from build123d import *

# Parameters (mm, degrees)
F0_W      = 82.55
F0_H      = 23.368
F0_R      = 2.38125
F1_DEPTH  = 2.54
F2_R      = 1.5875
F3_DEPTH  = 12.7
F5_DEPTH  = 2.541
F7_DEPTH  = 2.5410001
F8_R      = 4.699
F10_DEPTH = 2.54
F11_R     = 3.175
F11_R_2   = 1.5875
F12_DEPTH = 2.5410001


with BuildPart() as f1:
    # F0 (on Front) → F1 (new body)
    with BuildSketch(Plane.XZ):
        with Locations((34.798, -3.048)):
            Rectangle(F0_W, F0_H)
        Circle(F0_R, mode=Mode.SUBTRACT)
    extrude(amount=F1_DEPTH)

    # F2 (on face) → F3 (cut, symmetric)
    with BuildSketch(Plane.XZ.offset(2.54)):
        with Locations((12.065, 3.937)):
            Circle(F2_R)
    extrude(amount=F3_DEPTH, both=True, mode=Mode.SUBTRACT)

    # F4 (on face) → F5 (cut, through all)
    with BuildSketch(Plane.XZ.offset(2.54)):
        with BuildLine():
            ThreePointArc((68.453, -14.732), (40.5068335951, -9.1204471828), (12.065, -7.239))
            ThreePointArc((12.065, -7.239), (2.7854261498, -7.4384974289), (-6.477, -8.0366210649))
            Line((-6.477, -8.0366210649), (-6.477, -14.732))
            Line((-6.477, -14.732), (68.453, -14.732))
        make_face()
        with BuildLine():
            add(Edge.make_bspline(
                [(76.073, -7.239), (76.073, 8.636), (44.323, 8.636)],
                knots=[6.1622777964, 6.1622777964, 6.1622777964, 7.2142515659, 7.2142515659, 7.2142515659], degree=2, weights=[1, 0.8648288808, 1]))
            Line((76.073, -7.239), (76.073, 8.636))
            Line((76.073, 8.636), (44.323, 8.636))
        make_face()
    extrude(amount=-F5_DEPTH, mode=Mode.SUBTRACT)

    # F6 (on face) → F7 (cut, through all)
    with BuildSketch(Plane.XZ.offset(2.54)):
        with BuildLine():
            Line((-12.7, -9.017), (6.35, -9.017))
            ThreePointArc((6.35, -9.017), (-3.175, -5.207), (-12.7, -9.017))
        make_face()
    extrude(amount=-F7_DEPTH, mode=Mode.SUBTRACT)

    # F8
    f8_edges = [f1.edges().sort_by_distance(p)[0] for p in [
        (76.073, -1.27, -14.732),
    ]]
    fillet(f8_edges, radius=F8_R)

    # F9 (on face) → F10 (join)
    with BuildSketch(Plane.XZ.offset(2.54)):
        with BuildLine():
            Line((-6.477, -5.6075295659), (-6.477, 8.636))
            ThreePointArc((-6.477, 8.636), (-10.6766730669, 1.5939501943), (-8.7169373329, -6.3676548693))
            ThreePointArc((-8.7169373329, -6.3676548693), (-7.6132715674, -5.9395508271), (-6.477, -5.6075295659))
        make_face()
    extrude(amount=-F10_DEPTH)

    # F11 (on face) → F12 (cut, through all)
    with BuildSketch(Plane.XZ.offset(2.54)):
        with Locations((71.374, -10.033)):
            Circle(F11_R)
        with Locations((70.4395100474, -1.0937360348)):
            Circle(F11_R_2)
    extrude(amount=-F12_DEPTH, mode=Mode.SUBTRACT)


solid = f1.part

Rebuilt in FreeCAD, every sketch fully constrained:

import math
import FreeCAD as App
import Part
import Sketcher
Q = App.Units.Quantity


def edges_at(feature, points):
    """Names of the edges that pass closest to the given points."""
    edges = feature.Shape.Edges
    near = lambda p: min(range(len(edges)), key=lambda i: edges[i].distToShape(Part.Vertex(*p))[0])
    return sorted({f"Edge{near(p) + 1}" for p in points})

doc = App.newDocument("Part")
params = doc.addObject("Spreadsheet::Sheet", "Params")
for row, (alias, value) in enumerate([
    ("sketch1_diameter", "0.1875 in"),
    ("sketch1_width", "3.25 in"),
    ("sketch1_height", "0.92 in"),
    ("pad1_length", "0.1 in"),
    ("sketch2_diameter", "0.125 in"),
    ("pocket1_length", "1 in"),
    ("sketch3_width", "2.95 in"),
    ("sketch4_width", "0.75 in"),
    ("fillet_radius", "0.185 in"),
    ("sketch5_radius", "0.425 in"),
    ("pad2_length", "0.1 in"),
    ("sketch6_diameter", "0.25 in"),
    ("sketch6_diameter2", "0.125 in"),
], start=1):
    params.set(f"A{row}", alias)
    params.set(f"B{row}", "=" + value)
    params.setAlias(f"B{row}", alias)

body = doc.addObject("PartDesign::Body", "Body")

# Sketch on XZ plane
sketch1 = body.newObject("Sketcher::SketchObject", "Sketch")
sketch1.AttachmentSupport = (doc.getObject("XZ_Plane"), [""])
sketch1.MapMode = "FlatFace"
sketch1.addGeometry([
    Part.LineSegment(App.Vector(-6.5, 8.6, 0), App.Vector(-6.5, -14.7, 0)),  # 0
    Part.LineSegment(App.Vector(-6.5, -14.7, 0), App.Vector(76.1, -14.7, 0)),  # 1
    Part.LineSegment(App.Vector(76.1, -14.7, 0), App.Vector(76.1, 8.6, 0)),  # 2
    Part.LineSegment(App.Vector(76.1, 8.6, 0), App.Vector(-6.5, 8.6, 0)),  # 3
    Part.Circle(App.Vector(0, 0, 0), App.Vector(0, 0, 1), 2.4),  # 4
], False)
sketch1.addConstraint([
    Sketcher.Constraint("Coincident", 0, 2, 1, 1),
    Sketcher.Constraint("Coincident", 1, 2, 2, 1),
    Sketcher.Constraint("Coincident", 2, 2, 3, 1),
    Sketcher.Constraint("Coincident", 3, 2, 0, 1),
    Sketcher.Constraint("Vertical", 0),
    Sketcher.Constraint("Horizontal", 1),
    Sketcher.Constraint("Vertical", 2),
    Sketcher.Constraint("Horizontal", 3),
    Sketcher.Constraint("Coincident", 4, 3, -1, 1),
    Sketcher.Constraint("Diameter", 4, Q("0.1875 in")),
    Sketcher.Constraint("DistanceX", 1, 1, 1, 2, Q("3.25 in")),
    Sketcher.Constraint("DistanceY", 0, 2, 0, 1, Q("0.92 in")),
    Sketcher.Constraint("DistanceY", 0, 2, -1, 1, Q("0.58 in")),
    Sketcher.Constraint("DistanceX", 0, 2, -1, 1, Q("0.255 in")),
])
sketch1.setExpression("Constraints[9]", "Params.sketch1_diameter")
sketch1.setExpression("Constraints[10]", "Params.sketch1_width")
sketch1.setExpression("Constraints[11]", "Params.sketch1_height")
pad1 = body.newObject("PartDesign::Pad", "Pad")
pad1.Profile = sketch1
pad1.setExpression("Length", "Params.pad1_length")

# Sketch on XZ plane
sketch2 = body.newObject("Sketcher::SketchObject", "Sketch001")
sketch2.AttachmentSupport = (doc.getObject("XZ_Plane"), [""])
sketch2.MapMode = "FlatFace"
sketch2.AttachmentOffset = App.Placement(App.Vector(0, 0, 0.1 * 25.4), App.Rotation())
sketch2.addGeometry(Part.Circle(App.Vector(12.1, 3.9, 0), App.Vector(0, 0, 1), 1.6), False)
sketch2.addConstraint([
    Sketcher.Constraint("Diameter", 0, Q("0.125 in")),
    Sketcher.Constraint("DistanceX", -1, 1, 0, 3, Q("0.475 in")),
    Sketcher.Constraint("DistanceY", -1, 1, 0, 3, Q("0.155 in")),
])
sketch2.setExpression("Constraints[0]", "Params.sketch2_diameter")
pocket1 = body.newObject("PartDesign::Pocket", "Pocket")
pocket1.Profile = sketch2
pocket1.setExpression("Length", "Params.pocket1_length")
pocket1.Midplane = True

# Sketch on XZ plane
sketch3 = body.newObject("Sketcher::SketchObject", "Sketch002")
sketch3.AttachmentSupport = (doc.getObject("XZ_Plane"), [""])
sketch3.MapMode = "FlatFace"
sketch3.AttachmentOffset = App.Placement(App.Vector(0, 0, 0.1 * 25.4), App.Rotation())
sketch3.addGeometry([
    Part.ArcOfCircle(Part.Circle(App.Vector(12.065, -223.157297, 0), App.Vector(0, 0, 1), 215.918297), math.radians(74.861432), math.radians(90)),  # 0
    Part.ArcOfCircle(Part.Circle(App.Vector(12.065, -223.157297, 0), App.Vector(0, 0, 1), 215.918297), math.radians(90), math.radians(94.926347)),  # 1
    Part.LineSegment(App.Vector(-6.477, -8.036621, 0), App.Vector(-6.477, -14.732, 0)),  # 2
    Part.LineSegment(App.Vector(-6.477, -14.732, 0), App.Vector(68.453, -14.732, 0)),  # 3
    Part.BSplineCurve([App.Vector(76.073, -7.239, 0), App.Vector(76.073, 8.636, 0), App.Vector(44.323, 8.636, 0)], [3, 3], [6.162277796, 7.214251566], False, 2, [1, 0.864828881, 1], False),  # 4
    Part.LineSegment(App.Vector(76.073, -7.239, 0), App.Vector(76.073, 8.636, 0)),  # 5
    Part.LineSegment(App.Vector(76.073, 8.636, 0), App.Vector(44.323, 8.636, 0)),  # 6
], False)
sketch3.addConstraint([
    Sketcher.Constraint("Block", 4),
    Sketcher.Constraint("Tangent", 0, 2, 1, 1),
    Sketcher.Constraint("Coincident", 1, 2, 2, 1),
    Sketcher.Constraint("Coincident", 2, 2, 3, 1),
    Sketcher.Constraint("Coincident", 3, 2, 0, 1),
    Sketcher.Constraint("Coincident", 4, 1, 5, 1),
    Sketcher.Constraint("Coincident", 5, 2, 6, 1),
    Sketcher.Constraint("Coincident", 6, 2, 4, 2),
    Sketcher.Constraint("Vertical", 2),
    Sketcher.Constraint("Horizontal", 3),
    Sketcher.Constraint("Vertical", 5),
    Sketcher.Constraint("Horizontal", 6),
    Sketcher.Constraint("Equal", 0, 1),
    Sketcher.Constraint("Vertical", 1, 3, 0, 2),
    Sketcher.Constraint("DistanceX", 1, 2, 6, 2, Q("2 in")),
    Sketcher.Constraint("DistanceX", 3, 1, 3, 2, Q("2.95 in")),
    Sketcher.Constraint("DistanceY", 2, 2, -1, 1, Q("0.58 in")),
    Sketcher.Constraint("DistanceX", 1, 2, 0, 2, Q("0.73 in")),
    Sketcher.Constraint("DistanceY", 0, 2, -1, 1, Q("0.285 in")),
])
sketch3.setExpression("Constraints[15]", "Params.sketch3_width")
pocket2 = body.newObject("PartDesign::Pocket", "Pocket001")
pocket2.Profile = sketch3
pocket2.Type = "ThroughAll"

# Sketch on XZ plane
sketch4 = body.newObject("Sketcher::SketchObject", "Sketch003")
sketch4.AttachmentSupport = (doc.getObject("XZ_Plane"), [""])
sketch4.MapMode = "FlatFace"
sketch4.AttachmentOffset = App.Placement(App.Vector(0, 0, 0.1 * 25.4), App.Rotation())
sketch4.addGeometry([
    Part.LineSegment(App.Vector(-13, -9, 0), App.Vector(6, -9, 0)),
    Part.ArcOfCircle(Part.Circle(App.Vector(-3, -19, 0), App.Vector(0, 0, 1), 14), math.radians(46), math.radians(134)),
], False)
sketch4.addConstraint([
    Sketcher.Constraint("Coincident", 0, 1, 1, 2),
    Sketcher.Constraint("Coincident", 1, 1, 0, 2),
    Sketcher.Constraint("Horizontal", 0),
    Sketcher.Constraint("DistanceX", 0, 1, 0, 2, Q("0.75 in")),
    Sketcher.Constraint("DistanceX", 0, 1, -1, 1, Q("0.5 in")),
    Sketcher.Constraint("DistanceY", 0, 1, -1, 1, Q("0.355 in")),
    Sketcher.Constraint("Radius", 1, Q("13.81125 mm")),
])
sketch4.setExpression("Constraints[3]", "Params.sketch4_width")
pocket3 = body.newObject("PartDesign::Pocket", "Pocket002")
pocket3.Profile = sketch4
pocket3.Type = "ThroughAll"
doc.recompute()

fillet = body.newObject("PartDesign::Fillet", "Fillet")
fillet.Base = (pocket3, edges_at(pocket3, [(76.073, -1.27, -14.732)]))
fillet.setExpression("Radius", "Params.fillet_radius")

# Sketch on XZ plane
sketch5 = body.newObject("Sketcher::SketchObject", "Sketch004")
sketch5.AttachmentSupport = (doc.getObject("XZ_Plane"), [""])
sketch5.MapMode = "FlatFace"
sketch5.AttachmentOffset = App.Placement(App.Vector(0, 0, 0.1 * 25.4), App.Rotation())
sketch5.addGeometry([
    Part.LineSegment(App.Vector(-6.5, -5.6, 0), App.Vector(-6.5, 8.6, 0)),
    Part.ArcOfCircle(Part.Circle(App.Vector(0, 0, 0), App.Vector(0, 0, 1), 10.8), math.radians(127), math.radians(216)),
    Part.ArcOfCircle(Part.Circle(App.Vector(-3.2, -19, 0), App.Vector(0, 0, 1), 13.8), math.radians(103.83), math.radians(113.66)),
], False)
sketch5.addConstraint([
    Sketcher.Constraint("Coincident", 0, 2, 1, 1),
    Sketcher.Constraint("Coincident", 1, 2, 2, 2),
    Sketcher.Constraint("Coincident", 2, 1, 0, 1),
    Sketcher.Constraint("Vertical", 0),
    Sketcher.Constraint("Coincident", 1, 3, -1, 1),
    Sketcher.Constraint("Radius", 1, Q("0.425 in")),
    Sketcher.Constraint("DistanceY", -1, 1, 0, 2, Q("0.34 in")),
    Sketcher.Constraint("DistanceX", 0, 2, 2, 3, Q("0.13 in")),
    Sketcher.Constraint("Radius", 2, Q("13.81125 mm")),
    Sketcher.Constraint("DistanceY", 0, 1, 0, 2, Q("14.24353 mm")),
])
sketch5.setExpression("Constraints[5]", "Params.sketch5_radius")
pad2 = body.newObject("PartDesign::Pad", "Pad001")
pad2.Profile = sketch5
pad2.setExpression("Length", "Params.pad2_length")
pad2.Reversed = True

# Sketch on XZ plane
sketch6 = body.newObject("Sketcher::SketchObject", "Sketch005")
sketch6.AttachmentSupport = (doc.getObject("XZ_Plane"), [""])
sketch6.MapMode = "FlatFace"
sketch6.AttachmentOffset = App.Placement(App.Vector(0, 0, 0.1 * 25.4), App.Rotation())
sketch6.addGeometry([
    Part.Circle(App.Vector(71.4, -10, 0), App.Vector(0, 0, 1), 3.2),
    Part.Circle(App.Vector(70.4, -1.1, 0), App.Vector(0, 0, 1), 1.6),
], False)
sketch6.addConstraint([
    Sketcher.Constraint("Diameter", 0, Q("0.25 in")),
    Sketcher.Constraint("Diameter", 1, Q("0.125 in")),
    Sketcher.Constraint("DistanceX", -1, 1, 0, 3, Q("2.81 in")),
    Sketcher.Constraint("DistanceY", 0, 3, -1, 1, Q("0.395 in")),
    Sketcher.Constraint("DistanceX", -1, 1, 1, 3, Q("70.43951 mm")),
    Sketcher.Constraint("DistanceY", 1, 3, -1, 1, Q("1.093736 mm")),
])
sketch6.setExpression("Constraints[0]", "Params.sketch6_diameter")
sketch6.setExpression("Constraints[1]", "Params.sketch6_diameter2")
pocket4 = body.newObject("PartDesign::Pocket", "Pocket003")
pocket4.Profile = sketch6
pocket4.Type = "ThroughAll"

doc.recompute()
